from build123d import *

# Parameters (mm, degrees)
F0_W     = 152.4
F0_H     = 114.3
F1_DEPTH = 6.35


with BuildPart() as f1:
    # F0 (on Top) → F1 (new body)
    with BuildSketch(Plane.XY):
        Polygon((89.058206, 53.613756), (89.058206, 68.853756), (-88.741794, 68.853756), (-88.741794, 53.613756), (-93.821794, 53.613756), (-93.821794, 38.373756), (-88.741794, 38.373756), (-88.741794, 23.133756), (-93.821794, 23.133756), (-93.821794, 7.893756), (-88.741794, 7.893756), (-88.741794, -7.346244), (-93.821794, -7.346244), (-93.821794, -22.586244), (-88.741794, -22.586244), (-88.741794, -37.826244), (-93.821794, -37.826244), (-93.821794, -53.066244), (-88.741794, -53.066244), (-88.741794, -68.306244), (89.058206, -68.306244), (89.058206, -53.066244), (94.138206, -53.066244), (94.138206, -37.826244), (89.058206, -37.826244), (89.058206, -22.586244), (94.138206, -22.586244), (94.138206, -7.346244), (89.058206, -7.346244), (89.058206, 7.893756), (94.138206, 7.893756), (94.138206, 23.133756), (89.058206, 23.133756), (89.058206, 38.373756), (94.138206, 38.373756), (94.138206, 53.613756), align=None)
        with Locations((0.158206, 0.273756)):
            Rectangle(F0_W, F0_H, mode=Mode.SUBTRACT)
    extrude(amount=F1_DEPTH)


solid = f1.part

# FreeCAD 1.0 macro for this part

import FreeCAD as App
import Part
import Sketcher
Q = App.Units.Quantity


def add_polygon(sketch, points):
    """Adds a closed chain of lines whose ends are joined by coincident constraints."""
    first, n = sketch.GeometryCount, len(points)
    for a, b in zip(points, points[1:] + points[:1]):
        sketch.addGeometry(Part.LineSegment(App.Vector(*a, 0), App.Vector(*b, 0)), False)
    for i in range(n):
        sketch.addConstraint(Sketcher.Constraint("Coincident", first + i, 2, first + (i + 1) % n, 1))

doc = App.newDocument("Part")
body = doc.addObject("PartDesign::Body", "Body")

# Sketch on XY plane
sketch1 = body.newObject("Sketcher::SketchObject", "Sketch")
sketch1.AttachmentSupport = (doc.getObject("XY_Plane"), [""])
sketch1.MapMode = "FlatFace"
add_polygon(sketch1, [(89, 54), (89, 69), (-89, 69), (-89, 54), (-94, 54), (-94, 38), (-89, 38), (-89, 23), (-94, 23), (-94, 8), (-89, 8), (-89, -7), (-94, -7), (-94, -23), (-89, -23), (-89, -38), (-94, -38), (-94, -53), (-89, -53), (-89, -68), (89, -68), (89, -53), (94, -53), (94, -38), (89, -38), (89, -23), (94, -23), (94, -7), (89, -7), (89, 8), (94, 8), (94, 23), (89, 23), (89, 38), (94, 38), (94, 54)])  # lines 0-35
add_polygon(sketch1, [(76, -57), (-76, -57), (-76, 57), (76, 57)])  # lines 36-39
sketch1.addConstraint([
    Sketcher.Constraint("Vertical", 0),
    Sketcher.Constraint("Horizontal", 1),
    Sketcher.Constraint("Vertical", 2),
    Sketcher.Constraint("Horizontal", 3),
    Sketcher.Constraint("Vertical", 4),
    Sketcher.Constraint("Horizontal", 5),
    Sketcher.Constraint("Vertical", 6),
    Sketcher.Constraint("Horizontal", 7),
    Sketcher.Constraint("Vertical", 8),
    Sketcher.Constraint("Horizontal", 9),
    Sketcher.Constraint("Vertical", 10),
    Sketcher.Constraint("Horizontal", 11),
    Sketcher.Constraint("Vertical", 12),
    Sketcher.Constraint("Horizontal", 13),
    Sketcher.Constraint("Vertical", 14),
    Sketcher.Constraint("Horizontal", 15),
    Sketcher.Constraint("Vertical", 16),
    Sketcher.Constraint("Horizontal", 17),
    Sketcher.Constraint("Vertical", 18),
    Sketcher.Constraint("Horizontal", 19),
    Sketcher.Constraint("Vertical", 20),
    Sketcher.Constraint("Horizontal", 21),
    Sketcher.Constraint("Vertical", 22),
    Sketcher.Constraint("Horizontal", 23),
    Sketcher.Constraint("Vertical", 24),
    Sketcher.Constraint("Horizontal", 25),
    Sketcher.Constraint("Vertical", 26),
    Sketcher.Constraint("Horizontal", 27),
    Sketcher.Constraint("Vertical", 28),
    Sketcher.Constraint("Horizontal", 29),
    Sketcher.Constraint("Vertical", 30),
    Sketcher.Constraint("Horizontal", 31),
    Sketcher.Constraint("Vertical", 32),
    Sketcher.Constraint("Horizontal", 33),
    Sketcher.Constraint("Vertical", 34),
    Sketcher.Constraint("Horizontal", 35),
    Sketcher.Constraint("Horizontal", 36),
    Sketcher.Constraint("Vertical", 37),
    Sketcher.Constraint("Horizontal", 38),
    Sketcher.Constraint("Vertical", 39),
    Sketcher.Constraint("Horizontal", 17, 2, 20, 2),
    Sketcher.Constraint("Horizontal", 15, 2, 22, 2),
    Sketcher.Constraint("Horizontal", 13, 2, 24, 2),
    Sketcher.Constraint("Horizontal", 11, 2, 26, 2),
    Sketcher.Constraint("Horizontal", 9, 2, 28, 2),
    Sketcher.Constraint("Horizontal", 7, 2, 30, 2),
    Sketcher.Constraint("Horizontal", 5, 2, 32, 2),
    Sketcher.Constraint("Horizontal", 3, 2, 34, 2),
    Sketcher.Constraint("Vertical", 2, 2, 5, 2),
    Sketcher.Constraint("Vertical", 4, 2, 7, 2),
    Sketcher.Constraint("Vertical", 6, 2, 9, 2),
    Sketcher.Constraint("Vertical", 8, 2, 11, 2),
    Sketcher.Constraint("Vertical", 10, 2, 13, 2),
    Sketcher.Constraint("Vertical", 12, 2, 15, 2),
    Sketcher.Constraint("Vertical", 14, 2, 17, 2),
    Sketcher.Constraint("Vertical", 0, 2, 19, 2),
    Sketcher.Constraint("Vertical", 20, 2, 23, 2),
    Sketcher.Constraint("Vertical", 22, 2, 25, 2),
    Sketcher.Constraint("Vertical", 24, 2, 27, 2),
    Sketcher.Constraint("Vertical", 26, 2, 29, 2),
    Sketcher.Constraint("Vertical", 28, 2, 31, 2),
    Sketcher.Constraint("Vertical", 30, 2, 33, 2),
    Sketcher.Constraint("Equal", 17, 21),
    Sketcher.Constraint("Equal", 2, 4),
    Sketcher.Constraint("Equal", 4, 6),
    Sketcher.Constraint("Equal", 6, 8),
    Sketcher.Constraint("Equal", 8, 10),
    Sketcher.Constraint("Equal", 10, 12),
    Sketcher.Constraint("Equal", 12, 14),
    Sketcher.Constraint("Equal", 14, 16),
    Sketcher.Constraint("Equal", 16, 18),
    Sketcher.Constraint("DistanceX", 1, 2, 1, 1, Q("7 in")),
    Sketcher.Constraint("DistanceX", 36, 2, 36, 1, Q("6 in")),
    Sketcher.Constraint("DistanceX", 3, 2, 3, 1, Q("0.2 in")),
    Sketcher.Constraint("DistanceY", 0, 1, 0, 2, Q("0.6 in")),
    Sketcher.Constraint("DistanceY", 37, 1, 37, 2, Q("4.5 in")),
    Sketcher.Constraint("DistanceX", 17, 2, 36, 2, Q("0.5 in")),
    Sketcher.Constraint("DistanceY", 36, 2, 17, 2, Q("0.15 in")),
    Sketcher.Constraint("DistanceX", -1, 1, 0, 2, 89.058206),
    Sketcher.Constraint("DistanceY", -1, 1, 0, 2, 68.853756),
])
pad1 = body.newObject("PartDesign::Pad", "Pad")
pad1.Profile = sketch1
pad1.Length = Q("0.25 in")

doc.recompute()
